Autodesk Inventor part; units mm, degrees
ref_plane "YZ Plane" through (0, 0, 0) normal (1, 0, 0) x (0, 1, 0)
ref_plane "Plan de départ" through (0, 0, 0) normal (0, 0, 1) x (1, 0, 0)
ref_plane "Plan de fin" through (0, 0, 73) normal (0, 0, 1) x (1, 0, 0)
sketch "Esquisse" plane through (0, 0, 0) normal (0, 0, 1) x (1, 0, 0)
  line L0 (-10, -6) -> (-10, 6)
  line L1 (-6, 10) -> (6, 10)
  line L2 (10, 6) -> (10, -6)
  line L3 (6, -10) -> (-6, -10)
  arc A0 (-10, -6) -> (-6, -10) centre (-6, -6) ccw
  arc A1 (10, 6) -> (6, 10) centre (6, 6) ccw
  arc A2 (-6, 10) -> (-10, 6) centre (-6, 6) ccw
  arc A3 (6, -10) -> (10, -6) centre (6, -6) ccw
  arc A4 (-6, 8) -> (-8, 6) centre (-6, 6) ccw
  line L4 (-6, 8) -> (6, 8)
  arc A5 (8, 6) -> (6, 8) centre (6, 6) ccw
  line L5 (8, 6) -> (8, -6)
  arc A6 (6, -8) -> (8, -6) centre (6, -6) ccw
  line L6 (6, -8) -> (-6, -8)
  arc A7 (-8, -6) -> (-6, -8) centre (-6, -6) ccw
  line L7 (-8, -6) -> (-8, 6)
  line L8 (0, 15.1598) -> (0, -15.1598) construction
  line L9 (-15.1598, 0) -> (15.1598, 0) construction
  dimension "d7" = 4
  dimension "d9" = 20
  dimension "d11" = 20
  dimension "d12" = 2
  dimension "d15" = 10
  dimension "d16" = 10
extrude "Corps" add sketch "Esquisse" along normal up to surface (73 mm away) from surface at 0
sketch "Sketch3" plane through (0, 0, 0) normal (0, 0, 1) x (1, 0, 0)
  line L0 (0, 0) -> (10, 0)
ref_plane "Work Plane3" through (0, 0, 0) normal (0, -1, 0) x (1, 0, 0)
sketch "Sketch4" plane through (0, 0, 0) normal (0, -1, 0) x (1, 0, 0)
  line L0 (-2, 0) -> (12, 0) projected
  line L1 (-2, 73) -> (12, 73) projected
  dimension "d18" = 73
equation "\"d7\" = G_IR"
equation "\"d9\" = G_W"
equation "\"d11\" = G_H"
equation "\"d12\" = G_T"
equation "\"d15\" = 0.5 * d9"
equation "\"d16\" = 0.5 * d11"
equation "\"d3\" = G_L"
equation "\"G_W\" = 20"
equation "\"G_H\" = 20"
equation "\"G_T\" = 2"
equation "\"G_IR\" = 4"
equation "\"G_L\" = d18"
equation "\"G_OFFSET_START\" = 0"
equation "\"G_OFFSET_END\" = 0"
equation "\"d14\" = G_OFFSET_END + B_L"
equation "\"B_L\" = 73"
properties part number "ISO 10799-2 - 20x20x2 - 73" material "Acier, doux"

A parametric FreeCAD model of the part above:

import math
import FreeCAD as App
import Part
import Sketcher
Q = App.Units.Quantity

doc = App.newDocument("Part")
body = doc.addObject("PartDesign::Body", "Body")

sketch1 = body.newObject("Sketcher::SketchObject", "Sketch")
sketch1.AttachmentSupport = (doc.getObject("XY_Plane"), [""])
sketch1.MapMode = "FlatFace"
sketch1.addGeometry([
    Part.LineSegment(App.Vector(-10, 6, 0), App.Vector(-10, -6, 0)),
    Part.ArcOfCircle(Part.Circle(App.Vector(-6, -6, 0), App.Vector(0, 0, 1), 4), math.radians(180), math.radians(270)),
    Part.LineSegment(App.Vector(-6, -10, 0), App.Vector(6, -10, 0)),
    Part.ArcOfCircle(Part.Circle(App.Vector(6, -6, 0), App.Vector(0, 0, 1), 4), math.radians(-90), math.radians(0)),
    Part.LineSegment(App.Vector(10, -6, 0), App.Vector(10, 6, 0)),
    Part.ArcOfCircle(Part.Circle(App.Vector(6, 6, 0), App.Vector(0, 0, 1), 4), math.radians(0), math.radians(90)),
    Part.LineSegment(App.Vector(6, 10, 0), App.Vector(-6, 10, 0)),
    Part.ArcOfCircle(Part.Circle(App.Vector(-6, 6, 0), App.Vector(0, 0, 1), 4), math.radians(90), math.radians(180)),
    Part.ArcOfCircle(Part.Circle(App.Vector(-6, 6, 0), App.Vector(0, 0, 1), 2), math.radians(90), math.radians(180)),
    Part.LineSegment(App.Vector(-6, 8, 0), App.Vector(6, 8, 0)),
    Part.ArcOfCircle(Part.Circle(App.Vector(6, 6, 0), App.Vector(0, 0, 1), 2), math.radians(0), math.radians(90)),
    Part.LineSegment(App.Vector(8, 6, 0), App.Vector(8, -6, 0)),
    Part.ArcOfCircle(Part.Circle(App.Vector(6, -6, 0), App.Vector(0, 0, 1), 2), math.radians(-90), math.radians(0)),
    Part.LineSegment(App.Vector(6, -8, 0), App.Vector(-6, -8, 0)),
    Part.ArcOfCircle(Part.Circle(App.Vector(-6, -6, 0), App.Vector(0, 0, 1), 2), math.radians(180), math.radians(270)),
    Part.LineSegment(App.Vector(-8, -6, 0), App.Vector(-8, 6, 0)),
], False)
sketch1.addConstraint([
    Sketcher.Constraint("Tangent", 0, 2, 1, 1),
    Sketcher.Constraint("Tangent", 1, 2, 2, 1),
    Sketcher.Constraint("Tangent", 2, 2, 3, 1),
    Sketcher.Constraint("Tangent", 3, 2, 4, 1),
    Sketcher.Constraint("Tangent", 4, 2, 5, 1),
    Sketcher.Constraint("Tangent", 5, 2, 6, 1),
    Sketcher.Constraint("Tangent", 6, 2, 7, 1),
    Sketcher.Constraint("Tangent", 7, 2, 0, 1),
    Sketcher.Constraint("Tangent", 8, 1, 9, 1),
    Sketcher.Constraint("Tangent", 9, 2, 10, 2),
    Sketcher.Constraint("Tangent", 10, 1, 11, 1),
    Sketcher.Constraint("Tangent", 11, 2, 12, 2),
    Sketcher.Constraint("Tangent", 12, 1, 13, 1),
    Sketcher.Constraint("Tangent", 13, 2, 14, 2),
    Sketcher.Constraint("Tangent", 14, 1, 15, 1),
    Sketcher.Constraint("Tangent", 15, 2, 8, 2),
    Sketcher.Constraint("Vertical", 0),
    Sketcher.Constraint("Horizontal", 2),
    Sketcher.Constraint("Vertical", 4),
    Sketcher.Constraint("Horizontal", 6),
    Sketcher.Constraint("Horizontal", 9),
    Sketcher.Constraint("Vertical", 11),
    Sketcher.Constraint("Horizontal", 13),
    Sketcher.Constraint("Vertical", 15),
    Sketcher.Constraint("Coincident", 8, 3, 7, 3),
    Sketcher.Constraint("Coincident", 10, 3, 5, 3),
    Sketcher.Constraint("Coincident", 12, 3, 3, 3),
    Sketcher.Constraint("Equal", 1, 3),
    Sketcher.Constraint("Equal", 3, 5),
    Sketcher.Constraint("Equal", 5, 7),
    Sketcher.Constraint("Equal", 12, 14),
    Sketcher.Constraint("Symmetric", 1, 3, 5, 3, -1, 1),
    Sketcher.Constraint("Equal", 13, 0),
    Sketcher.Constraint("Radius", 1, Q("4 mm")),
    Sketcher.Constraint("Radius", 8, Q("2 mm")),
    Sketcher.Constraint("DistanceX", 0, 2, -1, 1, Q("10 mm")),
])
pad1 = body.newObject("PartDesign::Pad", "Pad")
pad1.Profile = sketch1
pad1.Length = 73

doc.recompute()
